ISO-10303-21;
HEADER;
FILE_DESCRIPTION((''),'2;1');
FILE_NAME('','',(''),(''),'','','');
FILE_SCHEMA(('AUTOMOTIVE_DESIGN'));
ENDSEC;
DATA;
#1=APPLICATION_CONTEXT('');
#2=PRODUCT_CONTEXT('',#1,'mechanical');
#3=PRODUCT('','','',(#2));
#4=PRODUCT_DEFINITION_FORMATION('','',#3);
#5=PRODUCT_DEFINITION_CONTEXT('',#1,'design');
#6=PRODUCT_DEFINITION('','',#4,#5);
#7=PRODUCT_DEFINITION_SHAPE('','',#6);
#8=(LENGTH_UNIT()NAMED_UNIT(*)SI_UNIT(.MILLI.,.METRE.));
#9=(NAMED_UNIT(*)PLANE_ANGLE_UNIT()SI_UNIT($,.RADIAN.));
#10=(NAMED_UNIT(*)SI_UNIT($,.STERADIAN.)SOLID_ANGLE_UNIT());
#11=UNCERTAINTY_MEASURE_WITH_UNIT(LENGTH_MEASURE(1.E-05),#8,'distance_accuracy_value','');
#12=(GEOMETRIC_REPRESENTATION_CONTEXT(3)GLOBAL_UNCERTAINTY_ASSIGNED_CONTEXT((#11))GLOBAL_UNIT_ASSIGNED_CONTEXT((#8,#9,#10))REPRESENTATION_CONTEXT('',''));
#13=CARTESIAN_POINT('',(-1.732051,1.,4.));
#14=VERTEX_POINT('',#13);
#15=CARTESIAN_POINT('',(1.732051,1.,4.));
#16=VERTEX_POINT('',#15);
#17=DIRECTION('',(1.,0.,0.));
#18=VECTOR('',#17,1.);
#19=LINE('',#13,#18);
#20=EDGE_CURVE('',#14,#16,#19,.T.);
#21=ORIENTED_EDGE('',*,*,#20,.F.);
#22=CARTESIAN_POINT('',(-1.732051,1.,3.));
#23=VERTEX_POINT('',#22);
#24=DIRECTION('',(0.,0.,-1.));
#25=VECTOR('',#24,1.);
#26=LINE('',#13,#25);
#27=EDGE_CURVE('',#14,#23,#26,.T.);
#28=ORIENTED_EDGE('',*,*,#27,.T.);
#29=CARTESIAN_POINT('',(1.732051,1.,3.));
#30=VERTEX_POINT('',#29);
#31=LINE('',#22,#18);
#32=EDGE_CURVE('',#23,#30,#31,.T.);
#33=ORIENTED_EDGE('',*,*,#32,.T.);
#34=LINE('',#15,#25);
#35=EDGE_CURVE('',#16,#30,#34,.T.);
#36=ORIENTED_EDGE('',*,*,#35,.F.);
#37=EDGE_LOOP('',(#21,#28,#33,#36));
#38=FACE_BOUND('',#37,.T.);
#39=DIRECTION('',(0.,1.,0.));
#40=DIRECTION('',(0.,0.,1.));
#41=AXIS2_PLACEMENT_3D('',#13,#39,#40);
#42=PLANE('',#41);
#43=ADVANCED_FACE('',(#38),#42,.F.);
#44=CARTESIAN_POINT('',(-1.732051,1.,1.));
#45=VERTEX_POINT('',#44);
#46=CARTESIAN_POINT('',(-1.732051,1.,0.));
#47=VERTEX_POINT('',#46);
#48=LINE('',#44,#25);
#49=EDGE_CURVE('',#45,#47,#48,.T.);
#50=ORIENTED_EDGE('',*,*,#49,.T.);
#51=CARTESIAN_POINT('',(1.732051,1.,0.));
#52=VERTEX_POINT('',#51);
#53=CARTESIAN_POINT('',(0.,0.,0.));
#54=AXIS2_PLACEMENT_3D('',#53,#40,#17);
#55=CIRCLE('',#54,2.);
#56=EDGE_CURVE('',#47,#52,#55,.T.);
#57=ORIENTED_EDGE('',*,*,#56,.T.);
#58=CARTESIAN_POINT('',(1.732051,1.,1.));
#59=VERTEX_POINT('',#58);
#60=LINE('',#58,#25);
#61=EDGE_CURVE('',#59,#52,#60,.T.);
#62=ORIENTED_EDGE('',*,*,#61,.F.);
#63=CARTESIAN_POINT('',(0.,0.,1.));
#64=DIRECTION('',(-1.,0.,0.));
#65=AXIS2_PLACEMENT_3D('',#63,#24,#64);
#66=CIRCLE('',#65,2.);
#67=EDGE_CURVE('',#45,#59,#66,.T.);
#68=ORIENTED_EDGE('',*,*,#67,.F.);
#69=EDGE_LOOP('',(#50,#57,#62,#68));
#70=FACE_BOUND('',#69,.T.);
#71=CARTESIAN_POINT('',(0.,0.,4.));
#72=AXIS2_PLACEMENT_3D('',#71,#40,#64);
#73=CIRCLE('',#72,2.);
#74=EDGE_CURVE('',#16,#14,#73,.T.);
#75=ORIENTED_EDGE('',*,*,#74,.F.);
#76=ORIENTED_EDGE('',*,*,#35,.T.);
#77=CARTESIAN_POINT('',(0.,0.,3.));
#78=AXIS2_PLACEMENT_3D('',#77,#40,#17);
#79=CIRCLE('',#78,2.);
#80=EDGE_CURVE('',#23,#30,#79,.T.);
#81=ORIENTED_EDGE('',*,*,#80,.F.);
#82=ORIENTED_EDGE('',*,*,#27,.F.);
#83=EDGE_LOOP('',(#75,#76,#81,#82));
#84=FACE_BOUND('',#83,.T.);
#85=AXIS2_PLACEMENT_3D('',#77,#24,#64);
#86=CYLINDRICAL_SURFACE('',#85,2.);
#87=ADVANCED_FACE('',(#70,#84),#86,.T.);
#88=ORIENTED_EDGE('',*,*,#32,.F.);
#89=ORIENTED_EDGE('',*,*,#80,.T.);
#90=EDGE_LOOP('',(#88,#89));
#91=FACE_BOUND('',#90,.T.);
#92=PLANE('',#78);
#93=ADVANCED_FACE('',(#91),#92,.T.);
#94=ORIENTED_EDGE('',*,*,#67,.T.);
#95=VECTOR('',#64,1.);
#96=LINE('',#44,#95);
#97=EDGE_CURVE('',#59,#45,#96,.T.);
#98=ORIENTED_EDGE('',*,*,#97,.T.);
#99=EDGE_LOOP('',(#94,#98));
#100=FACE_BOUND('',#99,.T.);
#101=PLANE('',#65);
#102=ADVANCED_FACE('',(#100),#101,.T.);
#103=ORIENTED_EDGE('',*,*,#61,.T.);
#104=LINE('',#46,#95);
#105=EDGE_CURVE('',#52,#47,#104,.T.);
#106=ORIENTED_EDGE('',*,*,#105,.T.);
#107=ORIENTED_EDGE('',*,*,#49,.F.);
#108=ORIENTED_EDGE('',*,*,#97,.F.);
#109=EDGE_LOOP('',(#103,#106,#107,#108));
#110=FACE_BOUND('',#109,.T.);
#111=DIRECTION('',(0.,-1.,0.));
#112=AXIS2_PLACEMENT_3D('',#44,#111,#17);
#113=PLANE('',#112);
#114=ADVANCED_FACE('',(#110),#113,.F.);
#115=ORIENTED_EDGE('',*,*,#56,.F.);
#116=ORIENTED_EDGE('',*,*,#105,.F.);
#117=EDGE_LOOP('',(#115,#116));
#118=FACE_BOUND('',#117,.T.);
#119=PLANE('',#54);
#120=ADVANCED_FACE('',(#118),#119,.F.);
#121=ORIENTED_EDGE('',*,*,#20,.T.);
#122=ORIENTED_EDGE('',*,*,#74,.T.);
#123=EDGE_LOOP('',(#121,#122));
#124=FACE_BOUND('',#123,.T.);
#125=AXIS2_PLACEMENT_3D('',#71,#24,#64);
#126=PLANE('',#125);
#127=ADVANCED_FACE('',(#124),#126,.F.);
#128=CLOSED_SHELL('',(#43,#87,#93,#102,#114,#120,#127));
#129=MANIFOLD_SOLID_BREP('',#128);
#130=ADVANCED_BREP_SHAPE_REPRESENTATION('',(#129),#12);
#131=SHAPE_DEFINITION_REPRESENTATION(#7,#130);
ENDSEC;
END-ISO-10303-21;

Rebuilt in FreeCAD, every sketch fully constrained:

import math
import FreeCAD as App
import Part
import Sketcher

doc = App.newDocument("Part")
params = doc.addObject("Spreadsheet::Sheet", "Params")
for row, (alias, value) in enumerate([
    ("sketch1_diameter", "4 mm"),
    ("pad1_length", "3 mm"),
    ("sketch2_radius", "2 mm"),
    ("pad2_length", "1 mm"),
    ("sketch3_radius", "2 mm"),
    ("pocket1_length", "1 mm"),
], start=1):
    params.set(f"A{row}", alias)
    params.set(f"B{row}", "=" + value)
    params.setAlias(f"B{row}", alias)

body = doc.addObject("PartDesign::Body", "Body")

sketch1 = body.newObject("Sketcher::SketchObject", "Sketch")
sketch1.AttachmentSupport = (doc.getObject("XY_Plane"), [""])
sketch1.MapMode = "FlatFace"
sketch1.addGeometry(Part.Circle(App.Vector(0, 0, 0), App.Vector(0, 0, 1), 2), False)
sketch1.addConstraint([
    Sketcher.Constraint("Coincident", 0, 3, -1, 1),
    Sketcher.Constraint("Diameter", 0, 4.0),
])
sketch1.setExpression("Constraints[1]", "Params.sketch1_diameter")
pad1 = body.newObject("PartDesign::Pad", "Pad")
pad1.Profile = sketch1
pad1.setExpression("Length", "Params.pad1_length")

sketch2 = body.newObject("Sketcher::SketchObject", "Sketch001")
sketch2.AttachmentSupport = (doc.getObject("XY_Plane"), [""])
sketch2.MapMode = "FlatFace"
sketch2.AttachmentOffset = App.Placement(App.Vector(0, 0, 3), App.Rotation())
sketch2.addGeometry([
    Part.LineSegment(App.Vector(-1.732051, 1, 0), App.Vector(1.732051, 1, 0)),
    Part.ArcOfCircle(Part.Circle(App.Vector(0, 0, 0), App.Vector(0, 0, 1), 2), math.radians(30), math.radians(150)),
], False)
sketch2.addConstraint([
    Sketcher.Constraint("Coincident", 0, 1, 1, 2),
    Sketcher.Constraint("Coincident", 1, 1, 0, 2),
    Sketcher.Constraint("Horizontal", 0),
    Sketcher.Constraint("Coincident", 1, 3, -1, 1),
    Sketcher.Constraint("Radius", 1, 2.0),
    Sketcher.Constraint("DistanceY", -1, 1, 0, 1, 1.0),
])
sketch2.setExpression("Constraints[4]", "Params.sketch2_radius")
pad2 = body.newObject("PartDesign::Pad", "Pad001")
pad2.Profile = sketch2
pad2.setExpression("Length", "Params.pad2_length")

sketch3 = body.newObject("Sketcher::SketchObject", "Sketch002")
sketch3.AttachmentSupport = (doc.getObject("XY_Plane"), [""])
sketch3.MapMode = "FlatFace"
sketch3.addGeometry([
    Part.LineSegment(App.Vector(1.732051, 1, 0), App.Vector(-1.732051, 1, 0)),
    Part.ArcOfCircle(Part.Circle(App.Vector(0, 0, 0), App.Vector(0, 0, 1), 2), math.radians(30), math.radians(150)),
], False)
sketch3.addConstraint([
    Sketcher.Constraint("Coincident", 0, 1, 1, 1),
    Sketcher.Constraint("Coincident", 1, 2, 0, 2),
    Sketcher.Constraint("Horizontal", 0),
    Sketcher.Constraint("Coincident", 1, 3, -1, 1),
    Sketcher.Constraint("Radius", 1, 2.0),
    Sketcher.Constraint("DistanceY", -1, 1, 0, 1, 1.0),
])
sketch3.setExpression("Constraints[4]", "Params.sketch3_radius")
pocket1 = body.newObject("PartDesign::Pocket", "Pocket")
pocket1.Profile = sketch3
pocket1.setExpression("Length", "Params.pocket1_length")
pocket1.Reversed = True

doc.recompute()
